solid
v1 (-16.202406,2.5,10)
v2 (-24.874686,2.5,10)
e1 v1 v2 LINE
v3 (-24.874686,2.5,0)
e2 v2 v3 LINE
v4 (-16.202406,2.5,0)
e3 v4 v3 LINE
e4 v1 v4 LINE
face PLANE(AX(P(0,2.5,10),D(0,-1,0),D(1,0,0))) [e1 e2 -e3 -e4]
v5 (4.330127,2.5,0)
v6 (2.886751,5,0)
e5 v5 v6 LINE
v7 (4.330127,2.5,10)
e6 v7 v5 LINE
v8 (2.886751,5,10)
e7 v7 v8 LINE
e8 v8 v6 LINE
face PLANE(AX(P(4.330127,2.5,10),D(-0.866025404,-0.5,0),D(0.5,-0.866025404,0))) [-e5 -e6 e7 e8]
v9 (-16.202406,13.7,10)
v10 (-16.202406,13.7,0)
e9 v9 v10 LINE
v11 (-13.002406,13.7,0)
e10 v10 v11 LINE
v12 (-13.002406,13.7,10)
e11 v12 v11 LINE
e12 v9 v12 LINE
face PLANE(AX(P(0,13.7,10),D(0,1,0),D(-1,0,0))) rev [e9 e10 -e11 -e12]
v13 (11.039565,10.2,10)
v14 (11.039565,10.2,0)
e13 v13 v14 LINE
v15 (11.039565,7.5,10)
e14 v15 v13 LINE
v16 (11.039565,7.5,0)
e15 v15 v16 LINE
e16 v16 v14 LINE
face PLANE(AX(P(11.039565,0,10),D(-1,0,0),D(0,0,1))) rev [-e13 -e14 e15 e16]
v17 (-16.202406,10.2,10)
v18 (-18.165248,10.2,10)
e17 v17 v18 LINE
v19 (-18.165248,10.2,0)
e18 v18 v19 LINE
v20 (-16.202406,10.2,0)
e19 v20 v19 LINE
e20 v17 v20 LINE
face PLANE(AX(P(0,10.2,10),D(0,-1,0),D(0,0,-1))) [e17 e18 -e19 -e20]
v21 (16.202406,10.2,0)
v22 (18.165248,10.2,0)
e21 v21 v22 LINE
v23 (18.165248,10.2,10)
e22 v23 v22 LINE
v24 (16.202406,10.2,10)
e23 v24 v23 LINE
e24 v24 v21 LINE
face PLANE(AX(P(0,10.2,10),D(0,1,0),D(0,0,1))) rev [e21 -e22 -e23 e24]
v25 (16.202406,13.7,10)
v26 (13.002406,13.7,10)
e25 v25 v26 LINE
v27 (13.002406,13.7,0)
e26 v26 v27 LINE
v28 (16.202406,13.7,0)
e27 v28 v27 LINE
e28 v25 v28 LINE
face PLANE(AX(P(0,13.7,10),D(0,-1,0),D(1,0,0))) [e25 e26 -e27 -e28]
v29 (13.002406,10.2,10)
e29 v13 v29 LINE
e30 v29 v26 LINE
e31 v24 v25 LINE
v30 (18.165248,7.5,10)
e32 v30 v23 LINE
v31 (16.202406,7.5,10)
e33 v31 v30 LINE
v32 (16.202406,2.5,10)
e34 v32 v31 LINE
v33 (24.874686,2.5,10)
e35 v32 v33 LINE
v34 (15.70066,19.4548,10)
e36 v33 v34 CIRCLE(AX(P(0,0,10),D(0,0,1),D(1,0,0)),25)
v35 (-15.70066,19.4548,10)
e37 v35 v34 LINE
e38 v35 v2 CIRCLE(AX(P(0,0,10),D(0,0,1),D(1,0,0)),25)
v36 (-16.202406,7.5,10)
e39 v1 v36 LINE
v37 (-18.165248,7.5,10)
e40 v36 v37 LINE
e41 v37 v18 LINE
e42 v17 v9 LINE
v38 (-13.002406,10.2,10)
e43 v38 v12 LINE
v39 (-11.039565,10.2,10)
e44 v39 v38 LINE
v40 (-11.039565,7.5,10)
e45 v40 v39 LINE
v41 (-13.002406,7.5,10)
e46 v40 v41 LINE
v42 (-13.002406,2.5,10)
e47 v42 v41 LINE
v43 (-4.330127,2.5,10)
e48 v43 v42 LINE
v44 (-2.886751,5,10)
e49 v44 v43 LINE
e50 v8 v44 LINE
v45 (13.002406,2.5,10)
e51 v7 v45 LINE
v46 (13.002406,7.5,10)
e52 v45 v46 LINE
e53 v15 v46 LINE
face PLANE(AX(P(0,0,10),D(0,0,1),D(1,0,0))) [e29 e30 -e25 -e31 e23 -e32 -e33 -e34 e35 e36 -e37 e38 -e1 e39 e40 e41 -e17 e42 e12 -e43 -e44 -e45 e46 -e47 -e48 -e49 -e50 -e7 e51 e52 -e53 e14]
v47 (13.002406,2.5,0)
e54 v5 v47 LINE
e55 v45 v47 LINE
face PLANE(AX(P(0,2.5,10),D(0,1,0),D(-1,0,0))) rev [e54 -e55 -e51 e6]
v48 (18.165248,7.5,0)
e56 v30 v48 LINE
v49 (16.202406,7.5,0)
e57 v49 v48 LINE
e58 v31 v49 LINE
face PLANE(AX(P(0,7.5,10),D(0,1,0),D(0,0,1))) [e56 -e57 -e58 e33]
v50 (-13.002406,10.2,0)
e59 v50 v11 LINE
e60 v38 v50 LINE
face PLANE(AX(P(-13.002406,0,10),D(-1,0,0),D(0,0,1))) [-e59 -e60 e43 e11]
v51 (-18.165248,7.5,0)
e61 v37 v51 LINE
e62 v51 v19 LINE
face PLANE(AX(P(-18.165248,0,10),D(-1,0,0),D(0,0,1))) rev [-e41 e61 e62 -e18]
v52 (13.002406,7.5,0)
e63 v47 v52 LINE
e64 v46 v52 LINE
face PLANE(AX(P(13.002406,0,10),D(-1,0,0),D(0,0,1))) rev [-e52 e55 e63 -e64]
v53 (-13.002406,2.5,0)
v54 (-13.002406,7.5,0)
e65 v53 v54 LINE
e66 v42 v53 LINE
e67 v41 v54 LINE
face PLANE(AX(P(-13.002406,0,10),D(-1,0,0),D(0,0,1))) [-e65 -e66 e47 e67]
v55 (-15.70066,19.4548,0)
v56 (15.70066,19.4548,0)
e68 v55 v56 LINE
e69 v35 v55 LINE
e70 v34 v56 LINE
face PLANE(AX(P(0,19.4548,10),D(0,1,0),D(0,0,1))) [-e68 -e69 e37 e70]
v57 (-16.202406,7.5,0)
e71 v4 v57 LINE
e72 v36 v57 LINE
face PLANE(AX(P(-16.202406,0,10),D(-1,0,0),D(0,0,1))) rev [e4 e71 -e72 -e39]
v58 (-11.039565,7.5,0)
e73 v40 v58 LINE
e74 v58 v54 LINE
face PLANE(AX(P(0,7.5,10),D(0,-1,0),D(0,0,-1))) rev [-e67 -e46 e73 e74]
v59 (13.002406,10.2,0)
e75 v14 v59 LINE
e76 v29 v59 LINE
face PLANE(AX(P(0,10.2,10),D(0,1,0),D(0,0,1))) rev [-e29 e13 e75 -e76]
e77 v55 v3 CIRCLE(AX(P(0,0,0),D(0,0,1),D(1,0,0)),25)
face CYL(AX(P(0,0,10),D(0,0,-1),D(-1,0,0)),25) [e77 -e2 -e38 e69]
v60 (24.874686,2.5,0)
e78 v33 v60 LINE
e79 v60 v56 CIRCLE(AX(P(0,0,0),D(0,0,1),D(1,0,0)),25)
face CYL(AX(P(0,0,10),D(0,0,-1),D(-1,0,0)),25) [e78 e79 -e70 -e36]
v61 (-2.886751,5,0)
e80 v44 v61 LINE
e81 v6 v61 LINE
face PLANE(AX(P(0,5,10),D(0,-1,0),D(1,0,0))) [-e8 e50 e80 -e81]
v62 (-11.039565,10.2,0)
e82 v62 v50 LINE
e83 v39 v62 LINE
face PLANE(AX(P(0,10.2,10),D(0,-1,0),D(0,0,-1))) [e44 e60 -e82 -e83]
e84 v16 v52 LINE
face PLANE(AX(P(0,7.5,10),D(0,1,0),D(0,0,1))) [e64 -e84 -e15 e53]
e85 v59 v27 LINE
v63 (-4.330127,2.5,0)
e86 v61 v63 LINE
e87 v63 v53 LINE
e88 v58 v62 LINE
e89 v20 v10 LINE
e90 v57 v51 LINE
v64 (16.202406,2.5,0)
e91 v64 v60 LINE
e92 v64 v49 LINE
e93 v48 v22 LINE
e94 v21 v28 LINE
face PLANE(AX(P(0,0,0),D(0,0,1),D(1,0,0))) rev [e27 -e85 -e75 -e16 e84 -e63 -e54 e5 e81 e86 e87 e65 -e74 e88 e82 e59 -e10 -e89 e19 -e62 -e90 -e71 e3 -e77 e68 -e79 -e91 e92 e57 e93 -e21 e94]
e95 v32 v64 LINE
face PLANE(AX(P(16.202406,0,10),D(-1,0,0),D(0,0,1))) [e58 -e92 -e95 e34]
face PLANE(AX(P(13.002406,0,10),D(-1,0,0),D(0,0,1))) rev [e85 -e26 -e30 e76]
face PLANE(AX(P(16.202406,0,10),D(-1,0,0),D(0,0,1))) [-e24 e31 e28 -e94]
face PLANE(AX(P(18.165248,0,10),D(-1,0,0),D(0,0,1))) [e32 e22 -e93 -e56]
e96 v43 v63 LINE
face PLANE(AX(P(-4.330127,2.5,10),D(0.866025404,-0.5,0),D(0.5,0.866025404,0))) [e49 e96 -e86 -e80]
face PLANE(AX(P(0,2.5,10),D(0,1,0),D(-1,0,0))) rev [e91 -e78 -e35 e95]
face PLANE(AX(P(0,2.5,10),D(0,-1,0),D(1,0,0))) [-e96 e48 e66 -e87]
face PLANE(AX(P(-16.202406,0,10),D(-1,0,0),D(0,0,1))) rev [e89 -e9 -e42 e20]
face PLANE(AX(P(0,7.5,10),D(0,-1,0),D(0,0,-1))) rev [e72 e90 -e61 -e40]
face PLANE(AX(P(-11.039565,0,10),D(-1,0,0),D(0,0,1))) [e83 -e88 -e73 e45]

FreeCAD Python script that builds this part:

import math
import FreeCAD as App
import Part
import Sketcher
Q = App.Units.Quantity

doc = App.newDocument("Part")
body = doc.addObject("PartDesign::Body", "Body")

# Sketch on XY plane
sketch1 = doc.addObject("Sketcher::SketchObject", "Sketch")
body.addObject(sketch1)
sketch1.AttachmentSupport = (doc.XY_Plane, [""])
sketch1.MapMode = "FlatFace"
sketch1.addGeometry([
    Part.LineSegment(App.Vector(2.886751, 5, 0), App.Vector(4.330127, 2.5, 0)),  # 0
    Part.LineSegment(App.Vector(4.330127, 2.5, 0), App.Vector(13.002406, 2.5, 0)),  # 1
    Part.LineSegment(App.Vector(13.002406, 2.5, 0), App.Vector(13.002406, 7.5, 0)),  # 2
    Part.LineSegment(App.Vector(13.002406, 7.5, 0), App.Vector(11.039565, 7.5, 0)),  # 3
    Part.LineSegment(App.Vector(11.039565, 7.5, 0), App.Vector(11.039565, 10.2, 0)),  # 4
    Part.LineSegment(App.Vector(11.039565, 10.2, 0), App.Vector(13.002406, 10.2, 0)),  # 5
    Part.LineSegment(App.Vector(13.002406, 10.2, 0), App.Vector(13.002406, 13.7, 0)),  # 6
    Part.LineSegment(App.Vector(13.002406, 13.7, 0), App.Vector(16.202406, 13.7, 0)),  # 7
    Part.LineSegment(App.Vector(16.202406, 13.7, 0), App.Vector(16.202406, 10.2, 0)),  # 8
    Part.LineSegment(App.Vector(16.202406, 10.2, 0), App.Vector(18.165248, 10.2, 0)),  # 9
    Part.LineSegment(App.Vector(18.165248, 10.2, 0), App.Vector(18.165248, 7.5, 0)),  # 10
    Part.LineSegment(App.Vector(18.165248, 7.5, 0), App.Vector(16.202406, 7.5, 0)),  # 11
    Part.LineSegment(App.Vector(16.202406, 7.5, 0), App.Vector(16.202406, 2.5, 0)),  # 12
    Part.LineSegment(App.Vector(16.202406, 2.5, 0), App.Vector(24.874686, 2.5, 0)),  # 13
    Part.ArcOfCircle(Part.Circle(App.Vector(0, 0, 0), App.Vector(0, 0, 1), 25), math.radians(5.73917), math.radians(51.095335)),  # 14
    Part.LineSegment(App.Vector(15.70066, 19.4548, 0), App.Vector(-15.70066, 19.4548, 0)),  # 15
    Part.ArcOfCircle(Part.Circle(App.Vector(0, 0, 0), App.Vector(0, 0, 1), 25), math.radians(128.904665), math.radians(174.26083)),  # 16
    Part.LineSegment(App.Vector(-24.874686, 2.5, 0), App.Vector(-16.202406, 2.5, 0)),  # 17
    Part.LineSegment(App.Vector(-16.202406, 2.5, 0), App.Vector(-16.202406, 7.5, 0)),  # 18
    Part.LineSegment(App.Vector(-16.202406, 7.5, 0), App.Vector(-18.165248, 7.5, 0)),  # 19
    Part.LineSegment(App.Vector(-18.165248, 7.5, 0), App.Vector(-18.165248, 10.2, 0)),  # 20
    Part.LineSegment(App.Vector(-18.165248, 10.2, 0), App.Vector(-16.202406, 10.2, 0)),  # 21
    Part.LineSegment(App.Vector(-16.202406, 10.2, 0), App.Vector(-16.202406, 13.7, 0)),  # 22
    Part.LineSegment(App.Vector(-16.202406, 13.7, 0), App.Vector(-13.002406, 13.7, 0)),  # 23
    Part.LineSegment(App.Vector(-13.002406, 13.7, 0), App.Vector(-13.002406, 10.2, 0)),  # 24
    Part.LineSegment(App.Vector(-13.002406, 10.2, 0), App.Vector(-11.039565, 10.2, 0)),  # 25
    Part.LineSegment(App.Vector(-11.039565, 10.2, 0), App.Vector(-11.039565, 7.5, 0)),  # 26
    Part.LineSegment(App.Vector(-11.039565, 7.5, 0), App.Vector(-13.002406, 7.5, 0)),  # 27
    Part.LineSegment(App.Vector(-13.002406, 7.5, 0), App.Vector(-13.002406, 2.5, 0)),  # 28
    Part.LineSegment(App.Vector(-13.002406, 2.5, 0), App.Vector(-4.330127, 2.5, 0)),  # 29
    Part.LineSegment(App.Vector(-4.330127, 2.5, 0), App.Vector(-2.886751, 5, 0)),  # 30
    Part.LineSegment(App.Vector(-2.886751, 5, 0), App.Vector(2.886751, 5, 0)),  # 31
], False)
sketch1.addConstraint([
    Sketcher.Constraint("Coincident", 0, 2, 1, 1),
    Sketcher.Constraint("Coincident", 1, 2, 2, 1),
    Sketcher.Constraint("Coincident", 2, 2, 3, 1),
    Sketcher.Constraint("Coincident", 3, 2, 4, 1),
    Sketcher.Constraint("Coincident", 4, 2, 5, 1),
    Sketcher.Constraint("Coincident", 5, 2, 6, 1),
    Sketcher.Constraint("Coincident", 6, 2, 7, 1),
    Sketcher.Constraint("Coincident", 7, 2, 8, 1),
    Sketcher.Constraint("Coincident", 8, 2, 9, 1),
    Sketcher.Constraint("Coincident", 9, 2, 10, 1),
    Sketcher.Constraint("Coincident", 10, 2, 11, 1),
    Sketcher.Constraint("Coincident", 11, 2, 12, 1),
    Sketcher.Constraint("Coincident", 12, 2, 13, 1),
    Sketcher.Constraint("Coincident", 13, 2, 14, 1),
    Sketcher.Constraint("Coincident", 14, 2, 15, 1),
    Sketcher.Constraint("Coincident", 15, 2, 16, 1),
    Sketcher.Constraint("Coincident", 16, 2, 17, 1),
    Sketcher.Constraint("Coincident", 17, 2, 18, 1),
    Sketcher.Constraint("Coincident", 18, 2, 19, 1),
    Sketcher.Constraint("Coincident", 19, 2, 20, 1),
    Sketcher.Constraint("Coincident", 20, 2, 21, 1),
    Sketcher.Constraint("Coincident", 21, 2, 22, 1),
    Sketcher.Constraint("Coincident", 22, 2, 23, 1),
    Sketcher.Constraint("Coincident", 23, 2, 24, 1),
    Sketcher.Constraint("Coincident", 24, 2, 25, 1),
    Sketcher.Constraint("Coincident", 25, 2, 26, 1),
    Sketcher.Constraint("Coincident", 26, 2, 27, 1),
    Sketcher.Constraint("Coincident", 27, 2, 28, 1),
    Sketcher.Constraint("Coincident", 28, 2, 29, 1),
    Sketcher.Constraint("Coincident", 29, 2, 30, 1),
    Sketcher.Constraint("Coincident", 30, 2, 31, 1),
    Sketcher.Constraint("Coincident", 31, 2, 0, 1),
    Sketcher.Constraint("Horizontal", 1),
    Sketcher.Constraint("Vertical", 2),
    Sketcher.Constraint("Horizontal", 3),
    Sketcher.Constraint("Vertical", 4),
    Sketcher.Constraint("Horizontal", 5),
    Sketcher.Constraint("Vertical", 6),
    Sketcher.Constraint("Horizontal", 7),
    Sketcher.Constraint("Vertical", 8),
    Sketcher.Constraint("Horizontal", 9),
    Sketcher.Constraint("Vertical", 10),
    Sketcher.Constraint("Horizontal", 11),
    Sketcher.Constraint("Vertical", 12),
    Sketcher.Constraint("Horizontal", 13),
    Sketcher.Constraint("Horizontal", 15),
    Sketcher.Constraint("Horizontal", 17),
    Sketcher.Constraint("Vertical", 18),
    Sketcher.Constraint("Horizontal", 19),
    Sketcher.Constraint("Vertical", 20),
    Sketcher.Constraint("Horizontal", 21),
    Sketcher.Constraint("Vertical", 22),
    Sketcher.Constraint("Horizontal", 23),
    Sketcher.Constraint("Vertical", 24),
    Sketcher.Constraint("Horizontal", 25),
    Sketcher.Constraint("Vertical", 26),
    Sketcher.Constraint("Horizontal", 27),
    Sketcher.Constraint("Vertical", 28),
    Sketcher.Constraint("Horizontal", 29),
    Sketcher.Constraint("Horizontal", 31),
    Sketcher.Constraint("Coincident", 14, 3, -1, 1),
    Sketcher.Constraint("Coincident", 16, 3, -1, 1),
    Sketcher.Constraint("Equal", 14, 16),
    Sketcher.Constraint("Symmetric", 12, 2, 17, 2, -2),
    Sketcher.Constraint("Symmetric", 10, 2, 19, 2, -2),
    Sketcher.Constraint("Symmetric", 8, 2, 21, 2, -2),
    Sketcher.Constraint("Symmetric", 6, 2, 23, 2, -2),
    Sketcher.Constraint("Symmetric", 4, 2, 25, 2, -2),
    Sketcher.Constraint("Symmetric", 2, 2, 27, 2, -2),
    Sketcher.Constraint("Symmetric", 0, 2, 29, 2, -2),
    Sketcher.Constraint("Horizontal", 5, 2, 8, 2),
    Sketcher.Constraint("Horizontal", 3, 2, 10, 2),
    Sketcher.Constraint("Horizontal", 1, 2, 12, 2),
    Sketcher.Constraint("Vertical", 2, 2, 5, 2),
    Sketcher.Constraint("Vertical", 8, 2, 11, 2),
    Sketcher.Constraint("Equal", 5, 9),
    Sketcher.Constraint("Equal", 1, 13),
    Sketcher.Constraint("Equal", 0, 30),
    Sketcher.Constraint("Radius", 14, 25.0),
    Sketcher.Constraint("DistanceY", 2, 1, 2, 2, 5.0),
    Sketcher.Constraint("Angle", 0, Q("-60 deg")),
    Sketcher.Constraint("DistanceX", 7, 1, 7, 2, 3.2),
    Sketcher.Constraint("DistanceY", 4, 1, 4, 2, 2.7),
    Sketcher.Constraint("DistanceY", 6, 1, 6, 2, 3.5),
    Sketcher.Constraint("DistanceY", -1, 1, 30, 2, 5.0),
    Sketcher.Constraint("DistanceY", -1, 1, 0, 2, 2.5),
    Sketcher.Constraint("DistanceX", 1, 1, 1, 2, 8.672279),
    Sketcher.Constraint("DistanceX", 3, 2, 3, 1, 1.962842),
    Sketcher.Constraint("DistanceX", 15, 2, 15, 1, 31.401321),
])
pad1 = doc.addObject("PartDesign::Pad", "Pad")
body.addObject(pad1)
pad1.Profile = sketch1
pad1.Length = 10

doc.recompute()
